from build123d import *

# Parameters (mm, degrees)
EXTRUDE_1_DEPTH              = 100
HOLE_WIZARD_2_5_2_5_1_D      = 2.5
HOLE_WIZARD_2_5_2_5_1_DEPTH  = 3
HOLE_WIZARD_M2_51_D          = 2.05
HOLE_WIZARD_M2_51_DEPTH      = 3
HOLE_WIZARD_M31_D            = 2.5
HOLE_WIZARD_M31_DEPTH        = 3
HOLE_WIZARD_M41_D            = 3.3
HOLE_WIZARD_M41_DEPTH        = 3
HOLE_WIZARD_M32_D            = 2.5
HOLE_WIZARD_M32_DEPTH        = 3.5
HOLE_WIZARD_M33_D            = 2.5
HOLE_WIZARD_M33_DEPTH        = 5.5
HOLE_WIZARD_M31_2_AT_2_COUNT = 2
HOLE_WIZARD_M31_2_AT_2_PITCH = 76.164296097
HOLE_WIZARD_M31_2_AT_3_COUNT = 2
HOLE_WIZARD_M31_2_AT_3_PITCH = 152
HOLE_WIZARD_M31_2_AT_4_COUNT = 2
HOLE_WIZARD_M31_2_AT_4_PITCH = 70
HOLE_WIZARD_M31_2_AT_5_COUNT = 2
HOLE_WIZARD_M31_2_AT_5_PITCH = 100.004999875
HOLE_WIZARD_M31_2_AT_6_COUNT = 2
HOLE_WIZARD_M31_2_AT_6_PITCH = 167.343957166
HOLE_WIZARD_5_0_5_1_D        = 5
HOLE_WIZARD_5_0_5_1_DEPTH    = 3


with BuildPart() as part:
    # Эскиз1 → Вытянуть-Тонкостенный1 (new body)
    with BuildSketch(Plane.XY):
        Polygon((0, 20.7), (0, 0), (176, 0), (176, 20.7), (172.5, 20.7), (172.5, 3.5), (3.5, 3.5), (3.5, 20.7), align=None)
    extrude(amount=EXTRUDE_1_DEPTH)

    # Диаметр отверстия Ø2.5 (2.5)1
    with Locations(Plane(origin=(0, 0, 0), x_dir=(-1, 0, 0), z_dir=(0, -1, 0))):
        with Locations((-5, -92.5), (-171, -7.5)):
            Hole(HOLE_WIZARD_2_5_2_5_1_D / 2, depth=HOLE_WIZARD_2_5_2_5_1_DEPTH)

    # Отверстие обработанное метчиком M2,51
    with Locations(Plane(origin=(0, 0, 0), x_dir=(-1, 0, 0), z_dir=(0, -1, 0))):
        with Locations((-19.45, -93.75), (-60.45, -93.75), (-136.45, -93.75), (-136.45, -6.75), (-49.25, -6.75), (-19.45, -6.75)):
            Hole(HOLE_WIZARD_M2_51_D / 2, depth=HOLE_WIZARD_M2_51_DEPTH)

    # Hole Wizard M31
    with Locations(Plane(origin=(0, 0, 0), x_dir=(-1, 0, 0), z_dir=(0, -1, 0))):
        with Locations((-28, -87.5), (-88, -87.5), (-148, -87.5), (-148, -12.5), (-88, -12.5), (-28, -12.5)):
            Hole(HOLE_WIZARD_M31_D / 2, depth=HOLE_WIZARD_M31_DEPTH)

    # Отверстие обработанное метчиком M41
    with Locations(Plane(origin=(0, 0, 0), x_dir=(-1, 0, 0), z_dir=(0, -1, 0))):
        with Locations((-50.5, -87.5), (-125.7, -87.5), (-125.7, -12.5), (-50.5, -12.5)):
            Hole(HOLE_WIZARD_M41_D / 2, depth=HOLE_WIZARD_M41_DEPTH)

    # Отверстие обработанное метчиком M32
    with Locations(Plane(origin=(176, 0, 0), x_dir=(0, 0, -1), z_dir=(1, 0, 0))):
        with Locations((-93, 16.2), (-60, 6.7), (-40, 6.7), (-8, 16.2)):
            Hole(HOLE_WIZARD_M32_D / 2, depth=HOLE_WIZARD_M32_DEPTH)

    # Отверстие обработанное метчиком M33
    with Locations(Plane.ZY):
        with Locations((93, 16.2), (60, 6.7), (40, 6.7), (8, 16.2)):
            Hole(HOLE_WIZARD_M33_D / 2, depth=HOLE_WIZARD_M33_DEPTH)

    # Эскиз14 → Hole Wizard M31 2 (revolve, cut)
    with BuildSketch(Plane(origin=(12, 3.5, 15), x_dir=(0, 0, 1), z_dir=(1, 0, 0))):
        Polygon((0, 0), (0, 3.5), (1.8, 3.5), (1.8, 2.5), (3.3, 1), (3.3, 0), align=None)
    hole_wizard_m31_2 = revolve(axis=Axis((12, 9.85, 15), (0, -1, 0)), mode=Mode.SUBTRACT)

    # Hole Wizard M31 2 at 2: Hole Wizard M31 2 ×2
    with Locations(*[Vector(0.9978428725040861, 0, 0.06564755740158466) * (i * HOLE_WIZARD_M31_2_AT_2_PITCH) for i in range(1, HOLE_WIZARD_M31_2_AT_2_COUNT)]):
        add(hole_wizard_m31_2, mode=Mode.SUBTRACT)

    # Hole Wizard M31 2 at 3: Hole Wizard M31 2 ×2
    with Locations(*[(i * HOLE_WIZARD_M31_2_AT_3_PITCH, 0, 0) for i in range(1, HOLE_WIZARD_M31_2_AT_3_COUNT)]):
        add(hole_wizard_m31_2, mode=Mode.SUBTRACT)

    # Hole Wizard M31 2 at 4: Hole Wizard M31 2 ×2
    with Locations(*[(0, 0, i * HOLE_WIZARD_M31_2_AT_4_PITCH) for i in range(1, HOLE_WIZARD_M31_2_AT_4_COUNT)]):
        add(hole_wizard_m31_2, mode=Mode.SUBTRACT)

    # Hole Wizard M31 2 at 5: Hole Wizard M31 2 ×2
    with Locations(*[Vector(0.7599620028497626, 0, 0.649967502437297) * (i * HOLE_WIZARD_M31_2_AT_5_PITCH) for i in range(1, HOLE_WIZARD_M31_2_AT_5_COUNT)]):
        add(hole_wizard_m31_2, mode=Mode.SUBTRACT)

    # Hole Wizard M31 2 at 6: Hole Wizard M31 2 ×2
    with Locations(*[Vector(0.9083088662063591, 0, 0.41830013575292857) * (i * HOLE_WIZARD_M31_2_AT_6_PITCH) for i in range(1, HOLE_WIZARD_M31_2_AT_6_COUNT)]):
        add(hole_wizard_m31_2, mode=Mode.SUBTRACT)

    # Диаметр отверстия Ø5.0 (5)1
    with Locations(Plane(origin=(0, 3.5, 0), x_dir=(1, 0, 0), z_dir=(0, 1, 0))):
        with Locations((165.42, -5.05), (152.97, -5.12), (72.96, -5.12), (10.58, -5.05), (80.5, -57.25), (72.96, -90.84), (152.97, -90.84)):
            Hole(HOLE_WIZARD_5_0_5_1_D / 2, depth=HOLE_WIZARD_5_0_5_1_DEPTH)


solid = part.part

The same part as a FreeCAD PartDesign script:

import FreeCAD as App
import Part
import Sketcher
from FreeCAD import Vector
Q = App.Units.Quantity

doc = App.newDocument("Part")
body = doc.addObject("PartDesign::Body", "Body")

# Sketch on XY plane
sketch1 = doc.addObject("Sketcher::SketchObject", "Sketch")
body.addObject(sketch1)
sketch1.AttachmentSupport = (doc.XY_Plane, [""])
sketch1.MapMode = "FlatFace"
sketch1.addGeometry(Part.LineSegment(Vector(0, 20.7, 0), Vector(0, 0, 0)), False)
sketch1.addGeometry(Part.LineSegment(Vector(0, 0, 0), Vector(176, 0, 0)), False)
sketch1.addGeometry(Part.LineSegment(Vector(176, 0, 0), Vector(176, 20.7, 0)), False)
sketch1.addGeometry(Part.LineSegment(Vector(176, 20.7, 0), Vector(172.5, 20.7, 0)), False)
sketch1.addGeometry(Part.LineSegment(Vector(172.5, 20.7, 0), Vector(172.5, 3.5, 0)), False)
sketch1.addGeometry(Part.LineSegment(Vector(172.5, 3.5, 0), Vector(3.5, 3.5, 0)), False)
sketch1.addGeometry(Part.LineSegment(Vector(3.5, 3.5, 0), Vector(3.5, 20.7, 0)), False)
sketch1.addGeometry(Part.LineSegment(Vector(3.5, 20.7, 0), Vector(0, 20.7, 0)), False)
sketch1.addConstraint(Sketcher.Constraint("Coincident", 0, 2, 1, 1))
sketch1.addConstraint(Sketcher.Constraint("Coincident", 1, 2, 2, 1))
sketch1.addConstraint(Sketcher.Constraint("Coincident", 2, 2, 3, 1))
sketch1.addConstraint(Sketcher.Constraint("Coincident", 3, 2, 4, 1))
sketch1.addConstraint(Sketcher.Constraint("Coincident", 4, 2, 5, 1))
sketch1.addConstraint(Sketcher.Constraint("Coincident", 5, 2, 6, 1))
sketch1.addConstraint(Sketcher.Constraint("Coincident", 6, 2, 7, 1))
sketch1.addConstraint(Sketcher.Constraint("Coincident", 7, 2, 0, 1))
sketch1.addConstraint(Sketcher.Constraint("Vertical", 0))
sketch1.addConstraint(Sketcher.Constraint("Horizontal", 1))
sketch1.addConstraint(Sketcher.Constraint("Vertical", 2))
sketch1.addConstraint(Sketcher.Constraint("Horizontal", 3))
sketch1.addConstraint(Sketcher.Constraint("Vertical", 4))
sketch1.addConstraint(Sketcher.Constraint("Horizontal", 5))
sketch1.addConstraint(Sketcher.Constraint("Vertical", 6))
sketch1.addConstraint(Sketcher.Constraint("Horizontal", 7))
sketch1.addConstraint(Sketcher.Constraint("Coincident", 0, 2, -1, 1))
sketch1.addConstraint(Sketcher.Constraint("Horizontal", 3, 2, 6, 2))
sketch1.addConstraint(Sketcher.Constraint("Equal", 3, 7))
sketch1.addConstraint(Sketcher.Constraint("DistanceX", 1, 1, 1, 2, 176.0))
sketch1.addConstraint(Sketcher.Constraint("DistanceX", 5, 2, 5, 1, 169.0))
sketch1.addConstraint(Sketcher.Constraint("DistanceY", 0, 2, 0, 1, 20.7))
sketch1.addConstraint(Sketcher.Constraint("DistanceY", 4, 2, 4, 1, 17.2))
pad1 = doc.addObject("PartDesign::Pad", "Pad")
body.addObject(pad1)
pad1.Profile = sketch1
pad1.Length = 100

# Sketch on XZ plane
sketch2 = doc.addObject("Sketcher::SketchObject", "Sketch001")
body.addObject(sketch2)
sketch2.AttachmentSupport = (doc.XZ_Plane, [""])
sketch2.MapMode = "FlatFace"
sketch2.addGeometry(Part.Circle(Vector(5, 92.5, 0), Vector(0, 0, 1), 1.2), False)
sketch2.addGeometry(Part.Circle(Vector(171, 7.5, 0), Vector(0, 0, 1), 1.2), False)
sketch2.addConstraint(Sketcher.Constraint("Equal", 0, 1))
sketch2.addConstraint(Sketcher.Constraint("Diameter", 0, 2.5))
sketch2.addConstraint(Sketcher.Constraint("DistanceX", -1, 1, 0, 3, 5.0))
sketch2.addConstraint(Sketcher.Constraint("DistanceX", -1, 1, 1, 3, 171.0))
sketch2.addConstraint(Sketcher.Constraint("DistanceY", 1, 3, 0, 3, 85.0))
sketch2.addConstraint(Sketcher.Constraint("DistanceY", -1, 1, 0, 3, 92.5))
doc.recompute()
hole = doc.addObject("PartDesign::Hole", "Hole")
body.addObject(hole)
hole.Profile = sketch2
hole.ThreadType = "None"
hole.Diameter = 2.5
hole.DepthType = "Dimension"
hole.Depth = 3
hole.DrillPoint = "Flat"

# Sketch on XZ plane
sketch3 = doc.addObject("Sketcher::SketchObject", "Sketch002")
body.addObject(sketch3)
sketch3.AttachmentSupport = (doc.XZ_Plane, [""])
sketch3.MapMode = "FlatFace"
sketch3.addGeometry(Part.Circle(Vector(19.4, 93.8, 0), Vector(0, 0, 1), 1), False)
sketch3.addGeometry(Part.Circle(Vector(60.5, 93.8, 0), Vector(0, 0, 1), 1), False)
sketch3.addGeometry(Part.Circle(Vector(136.4, 93.8, 0), Vector(0, 0, 1), 1), False)
sketch3.addGeometry(Part.Circle(Vector(136.4, 6.8, 0), Vector(0, 0, 1), 1), False)
sketch3.addGeometry(Part.Circle(Vector(49.2, 6.8, 0), Vector(0, 0, 1), 1), False)
sketch3.addGeometry(Part.Circle(Vector(19.4, 6.8, 0), Vector(0, 0, 1), 1), False)
sketch3.addConstraint(Sketcher.Constraint("Equal", 0, 1))
sketch3.addConstraint(Sketcher.Constraint("Equal", 1, 2))
sketch3.addConstraint(Sketcher.Constraint("Equal", 2, 3))
sketch3.addConstraint(Sketcher.Constraint("Equal", 3, 4))
sketch3.addConstraint(Sketcher.Constraint("Equal", 4, 5))
sketch3.addConstraint(Sketcher.Constraint("Horizontal", 0, 3, 1, 3))
sketch3.addConstraint(Sketcher.Constraint("Horizontal", 1, 3, 2, 3))
sketch3.addConstraint(Sketcher.Constraint("Horizontal", 3, 3, 4, 3))
sketch3.addConstraint(Sketcher.Constraint("Horizontal", 4, 3, 5, 3))
sketch3.addConstraint(Sketcher.Constraint("Vertical", 2, 3, 3, 3))
sketch3.addConstraint(Sketcher.Constraint("Vertical", 0, 3, 5, 3))
sketch3.addConstraint(Sketcher.Constraint("Diameter", 0, 2.05))
sketch3.addConstraint(Sketcher.Constraint("DistanceX", 0, 3, 1, 3, 41.0))
sketch3.addConstraint(Sketcher.Constraint("DistanceX", 1, 3, 2, 3, 76.0))
sketch3.addConstraint(Sketcher.Constraint("DistanceY", 3, 3, 2, 3, 87.0))
sketch3.addConstraint(Sketcher.Constraint("DistanceX", 4, 3, 3, 3, 87.2))
sketch3.addConstraint(Sketcher.Constraint("DistanceX", -1, 1, 0, 3, 19.45))
sketch3.addConstraint(Sketcher.Constraint("DistanceY", -1, 1, 0, 3, 93.75))
doc.recompute()
hole2 = doc.addObject("PartDesign::Hole", "Hole001")
body.addObject(hole2)
hole2.Profile = sketch3
hole2.ThreadType = "None"
hole2.Diameter = 2.05
hole2.DepthType = "Dimension"
hole2.Depth = 3
hole2.DrillPoint = "Flat"

# Sketch on XZ plane
sketch4 = doc.addObject("Sketcher::SketchObject", "Sketch003")
body.addObject(sketch4)
sketch4.AttachmentSupport = (doc.XZ_Plane, [""])
sketch4.MapMode = "FlatFace"
sketch4.addGeometry(Part.Circle(Vector(28, 87.5, 0), Vector(0, 0, 1), 1.2), False)
sketch4.addGeometry(Part.Circle(Vector(88, 87.5, 0), Vector(0, 0, 1), 1.2), False)
sketch4.addGeometry(Part.Circle(Vector(148, 87.5, 0), Vector(0, 0, 1), 1.2), False)
sketch4.addGeometry(Part.Circle(Vector(148, 12.5, 0), Vector(0, 0, 1), 1.2), False)
sketch4.addGeometry(Part.Circle(Vector(88, 12.5, 0), Vector(0, 0, 1), 1.2), False)
sketch4.addGeometry(Part.Circle(Vector(28, 12.5, 0), Vector(0, 0, 1), 1.2), False)
sketch4.addConstraint(Sketcher.Constraint("Equal", 0, 1))
sketch4.addConstraint(Sketcher.Constraint("Equal", 1, 2))
sketch4.addConstraint(Sketcher.Constraint("Equal", 2, 3))
sketch4.addConstraint(Sketcher.Constraint("Equal", 3, 4))
sketch4.addConstraint(Sketcher.Constraint("Equal", 4, 5))
sketch4.addConstraint(Sketcher.Constraint("Horizontal", 0, 3, 1, 3))
sketch4.addConstraint(Sketcher.Constraint("Horizontal", 1, 3, 2, 3))
sketch4.addConstraint(Sketcher.Constraint("Horizontal", 3, 3, 4, 3))
sketch4.addConstraint(Sketcher.Constraint("Horizontal", 4, 3, 5, 3))
sketch4.addConstraint(Sketcher.Constraint("Vertical", 2, 3, 3, 3))
sketch4.addConstraint(Sketcher.Constraint("Vertical", 1, 3, 4, 3))
sketch4.addConstraint(Sketcher.Constraint("Vertical", 0, 3, 5, 3))
sketch4.addConstraint(Sketcher.Constraint("Diameter", 0, 2.5))
sketch4.addConstraint(Sketcher.Constraint("DistanceX", -1, 1, 0, 3, 28.0))
sketch4.addConstraint(Sketcher.Constraint("DistanceX", -1, 1, 1, 3, 88.0))
sketch4.addConstraint(Sketcher.Constraint("DistanceX", -1, 1, 2, 3, 148.0))
sketch4.addConstraint(Sketcher.Constraint("DistanceY", 3, 3, 2, 3, 75.0))
sketch4.addConstraint(Sketcher.Constraint("DistanceY", -1, 1, 0, 3, 87.5))
doc.recompute()
hole3 = doc.addObject("PartDesign::Hole", "Hole002")
body.addObject(hole3)
hole3.Profile = sketch4
hole3.ThreadType = "None"
hole3.Diameter = 2.5
hole3.DepthType = "Dimension"
hole3.Depth = 3
hole3.DrillPoint = "Flat"

# Sketch on XZ plane
sketch5 = doc.addObject("Sketcher::SketchObject", "Sketch004")
body.addObject(sketch5)
sketch5.AttachmentSupport = (doc.XZ_Plane, [""])
sketch5.MapMode = "FlatFace"
sketch5.addGeometry(Part.Circle(Vector(50.5, 87.5, 0), Vector(0, 0, 1), 1.6), False)
sketch5.addGeometry(Part.Circle(Vector(125.7, 87.5, 0), Vector(0, 0, 1), 1.6), False)
sketch5.addGeometry(Part.Circle(Vector(125.7, 12.5, 0), Vector(0, 0, 1), 1.6), False)
sketch5.addGeometry(Part.Circle(Vector(50.5, 12.5, 0), Vector(0, 0, 1), 1.6), False)
sketch5.addConstraint(Sketcher.Constraint("Equal", 0, 1))
sketch5.addConstraint(Sketcher.Constraint("Equal", 1, 2))
sketch5.addConstraint(Sketcher.Constraint("Equal", 2, 3))
sketch5.addConstraint(Sketcher.Constraint("Horizontal", 0, 3, 1, 3))
sketch5.addConstraint(Sketcher.Constraint("Horizontal", 2, 3, 3, 3))
sketch5.addConstraint(Sketcher.Constraint("Vertical", 1, 3, 2, 3))
sketch5.addConstraint(Sketcher.Constraint("Vertical", 0, 3, 3, 3))
sketch5.addConstraint(Sketcher.Constraint("Diameter", 0, 3.3))
sketch5.addConstraint(Sketcher.Constraint("DistanceY", 2, 3, 1, 3, 75.0))
sketch5.addConstraint(Sketcher.Constraint("DistanceX", -1, 1, 0, 3, 50.5))
sketch5.addConstraint(Sketcher.Constraint("DistanceY", -1, 1, 0, 3, 87.5))
sketch5.addConstraint(Sketcher.Constraint("DistanceX", -1, 1, 1, 3, 125.7))
doc.recompute()
hole4 = doc.addObject("PartDesign::Hole", "Hole003")
body.addObject(hole4)
hole4.Profile = sketch5
hole4.ThreadType = "None"
hole4.Diameter = 3.3
hole4.DepthType = "Dimension"
hole4.Depth = 3
hole4.DrillPoint = "Flat"

# Sketch on YZ plane
sketch6 = doc.addObject("Sketcher::SketchObject", "Sketch005")
body.addObject(sketch6)
sketch6.AttachmentSupport = (doc.YZ_Plane, [""])
sketch6.MapMode = "FlatFace"
sketch6.AttachmentOffset = App.Placement(Vector(0, 0, 176), App.Rotation())
sketch6.addGeometry(Part.Circle(Vector(16.2, 93, 0), Vector(0, 0, 1), 1.2), False)
sketch6.addGeometry(Part.Circle(Vector(6.7, 60, 0), Vector(0, 0, 1), 1.2), False)
sketch6.addGeometry(Part.Circle(Vector(6.7, 40, 0), Vector(0, 0, 1), 1.2), False)
sketch6.addGeometry(Part.Circle(Vector(16.2, 8, 0), Vector(0, 0, 1), 1.2), False)
sketch6.addConstraint(Sketcher.Constraint("Equal", 0, 1))
sketch6.addConstraint(Sketcher.Constraint("Equal", 1, 2))
sketch6.addConstraint(Sketcher.Constraint("Equal", 2, 3))
sketch6.addConstraint(Sketcher.Constraint("Vertical", 1, 3, 2, 3))
sketch6.addConstraint(Sketcher.Constraint("Vertical", 0, 3, 3, 3))
sketch6.addConstraint(Sketcher.Constraint("Diameter", 0, 2.5))
sketch6.addConstraint(Sketcher.Constraint("DistanceY", -1, 1, 0, 3, 93.0))
sketch6.addConstraint(Sketcher.Constraint("DistanceY", -1, 1, 1, 3, 60.0))
sketch6.addConstraint(Sketcher.Constraint("DistanceY", -1, 1, 2, 3, 40.0))
sketch6.addConstraint(Sketcher.Constraint("DistanceY", -1, 1, 3, 3, 8.0))
sketch6.addConstraint(Sketcher.Constraint("DistanceX", -1, 1, 0, 3, 16.2))
sketch6.addConstraint(Sketcher.Constraint("DistanceX", -1, 1, 1, 3, 6.7))
doc.recompute()
hole5 = doc.addObject("PartDesign::Hole", "Hole004")
body.addObject(hole5)
hole5.Profile = sketch6
hole5.ThreadType = "None"
hole5.Diameter = 2.5
hole5.DepthType = "Dimension"
hole5.Depth = 3.5
hole5.DrillPoint = "Flat"

# Sketch on YZ plane
sketch7 = doc.addObject("Sketcher::SketchObject", "Sketch006")
body.addObject(sketch7)
sketch7.AttachmentSupport = (doc.YZ_Plane, [""])
sketch7.MapMode = "FlatFace"
sketch7.addGeometry(Part.Circle(Vector(16.2, 93, 0), Vector(0, 0, 1), 1.2), False)
sketch7.addGeometry(Part.Circle(Vector(6.7, 60, 0), Vector(0, 0, 1), 1.2), False)
sketch7.addGeometry(Part.Circle(Vector(6.7, 40, 0), Vector(0, 0, 1), 1.2), False)
sketch7.addGeometry(Part.Circle(Vector(16.2, 8, 0), Vector(0, 0, 1), 1.2), False)
sketch7.addConstraint(Sketcher.Constraint("Equal", 0, 1))
sketch7.addConstraint(Sketcher.Constraint("Equal", 1, 2))
sketch7.addConstraint(Sketcher.Constraint("Equal", 2, 3))
sketch7.addConstraint(Sketcher.Constraint("Vertical", 1, 3, 2, 3))
sketch7.addConstraint(Sketcher.Constraint("Vertical", 0, 3, 3, 3))
sketch7.addConstraint(Sketcher.Constraint("Diameter", 0, 2.5))
sketch7.addConstraint(Sketcher.Constraint("DistanceY", -1, 1, 0, 3, 93.0))
sketch7.addConstraint(Sketcher.Constraint("DistanceY", -1, 1, 1, 3, 60.0))
sketch7.addConstraint(Sketcher.Constraint("DistanceY", -1, 1, 2, 3, 40.0))
sketch7.addConstraint(Sketcher.Constraint("DistanceY", -1, 1, 3, 3, 8.0))
sketch7.addConstraint(Sketcher.Constraint("DistanceX", -1, 1, 0, 3, 16.2))
sketch7.addConstraint(Sketcher.Constraint("DistanceX", -1, 1, 1, 3, 6.7))
doc.recompute()
hole6 = doc.addObject("PartDesign::Hole", "Hole005")
body.addObject(hole6)
hole6.Profile = sketch7
hole6.ThreadType = "None"
hole6.Diameter = 2.5
hole6.DepthType = "Dimension"
hole6.Depth = 5.5
hole6.DrillPoint = "Flat"
hole6.Reversed = True

# Sketch on YZ plane
sketch8 = doc.addObject("Sketcher::SketchObject", "Sketch007")
body.addObject(sketch8)
sketch8.AttachmentSupport = (doc.YZ_Plane, [""])
sketch8.MapMode = "FlatFace"
sketch8.AttachmentOffset = App.Placement(Vector(0, 0, 12), App.Rotation())
sketch8.addGeometry(Part.LineSegment(Vector(0, 15, 0), Vector(3.5, 15, 0)), False)
sketch8.addGeometry(Part.LineSegment(Vector(3.5, 15, 0), Vector(3.5, 18.3, 0)), False)
sketch8.addGeometry(Part.LineSegment(Vector(3.5, 18.3, 0), Vector(2.5, 18.3, 0)), False)
sketch8.addGeometry(Part.LineSegment(Vector(2.5, 18.3, 0), Vector(1, 16.8, 0)), False)
sketch8.addGeometry(Part.LineSegment(Vector(1, 16.8, 0), Vector(0, 16.8, 0)), False)
sketch8.addGeometry(Part.LineSegment(Vector(0, 16.8, 0), Vector(0, 15, 0)), False)
sketch8.addGeometry(Part.LineSegment(Vector(3.5, 15, 0), Vector(0, 15, 0)), True)  # axis
sketch8.addConstraint(Sketcher.Constraint("Coincident", 0, 2, 1, 1))
sketch8.addConstraint(Sketcher.Constraint("Coincident", 1, 2, 2, 1))
sketch8.addConstraint(Sketcher.Constraint("Coincident", 2, 2, 3, 1))
sketch8.addConstraint(Sketcher.Constraint("Coincident", 3, 2, 4, 1))
sketch8.addConstraint(Sketcher.Constraint("Coincident", 4, 2, 5, 1))
sketch8.addConstraint(Sketcher.Constraint("Coincident", 5, 2, 0, 1))
sketch8.addConstraint(Sketcher.Constraint("Horizontal", 0))
sketch8.addConstraint(Sketcher.Constraint("Vertical", 1))
sketch8.addConstraint(Sketcher.Constraint("Horizontal", 2))
sketch8.addConstraint(Sketcher.Constraint("Horizontal", 4))
sketch8.addConstraint(Sketcher.Constraint("Vertical", 5))
sketch8.addConstraint(Sketcher.Constraint("Horizontal", 6))
sketch8.addConstraint(Sketcher.Constraint("Coincident", 6, 1, 0, 2))
sketch8.addConstraint(Sketcher.Constraint("PointOnObject", 4, 2, -2))
sketch8.addConstraint(Sketcher.Constraint("PointOnObject", 6, 2, -2))
sketch8.addConstraint(Sketcher.Constraint("Equal", 2, 4))
sketch8.addConstraint(Sketcher.Constraint("DistanceX", 2, 2, 2, 1, 1.0))
sketch8.addConstraint(Sketcher.Constraint("Angle", 3, Q("-135 deg")))
sketch8.addConstraint(Sketcher.Constraint("DistanceX", 0, 1, 0, 2, 3.5))
sketch8.addConstraint(Sketcher.Constraint("DistanceY", 1, 1, 1, 2, 3.3))
sketch8.addConstraint(Sketcher.Constraint("DistanceY", -1, 1, 0, 2, 15.0))
groove = doc.addObject("PartDesign::Groove", "Groove")
body.addObject(groove)
groove.Profile = sketch8
groove.ReferenceAxis = (sketch8, ["Axis0"])
groove.Angle = 360
doc.recompute()

datumline = doc.addObject("PartDesign::Line", "DatumLine")
body.addObject(datumline)
datumline.Placement = App.Placement(Vector(0, 0, 0), App.Rotation(Vector(0, 0, 1), Vector(0.997842873, 0, 0.065647557)))
linearpattern = doc.addObject("PartDesign::LinearPattern", "LinearPattern")
body.addObject(linearpattern)
linearpattern.Originals = [groove]
linearpattern.Direction = (datumline, [""])
linearpattern.Mode = "offset"
linearpattern.Offset = 76.164296
linearpattern.Occurrences = 2
body.Tip = linearpattern
doc.recompute()

linearpattern2 = doc.addObject("PartDesign::LinearPattern", "LinearPattern001")
body.addObject(linearpattern2)
linearpattern2.Originals = [groove]
linearpattern2.Direction = (doc.X_Axis, [""])
linearpattern2.Mode = "offset"
linearpattern2.Offset = 152
linearpattern2.Occurrences = 2
body.Tip = linearpattern2
doc.recompute()

linearpattern3 = doc.addObject("PartDesign::LinearPattern", "LinearPattern002")
body.addObject(linearpattern3)
linearpattern3.Originals = [groove]
linearpattern3.Direction = (doc.Z_Axis, [""])
linearpattern3.Mode = "offset"
linearpattern3.Offset = 70
linearpattern3.Occurrences = 2
body.Tip = linearpattern3
doc.recompute()

datumline2 = doc.addObject("PartDesign::Line", "DatumLine001")
body.addObject(datumline2)
datumline2.Placement = App.Placement(Vector(0, 0, 0), App.Rotation(Vector(0, 0, 1), Vector(0.759962003, 0, 0.649967502)))
linearpattern4 = doc.addObject("PartDesign::LinearPattern", "LinearPattern003")
body.addObject(linearpattern4)
linearpattern4.Originals = [groove]
linearpattern4.Direction = (datumline2, [""])
linearpattern4.Mode = "offset"
linearpattern4.Offset = 100.005
linearpattern4.Occurrences = 2
body.Tip = linearpattern4
doc.recompute()

datumline3 = doc.addObject("PartDesign::Line", "DatumLine002")
body.addObject(datumline3)
datumline3.Placement = App.Placement(Vector(0, 0, 0), App.Rotation(Vector(0, 0, 1), Vector(0.908308866, 0, 0.418300136)))
linearpattern5 = doc.addObject("PartDesign::LinearPattern", "LinearPattern004")
body.addObject(linearpattern5)
linearpattern5.Originals = [groove]
linearpattern5.Direction = (datumline3, [""])
linearpattern5.Mode = "offset"
linearpattern5.Offset = 167.343957
linearpattern5.Occurrences = 2
body.Tip = linearpattern5

# Sketch on XZ plane
sketch9 = doc.addObject("Sketcher::SketchObject", "Sketch008")
body.addObject(sketch9)
sketch9.AttachmentSupport = (doc.XZ_Plane, [""])
sketch9.MapMode = "FlatFace"
sketch9.AttachmentOffset = App.Placement(Vector(0, 0, -3.5), App.Rotation())
sketch9.addGeometry(Part.Circle(Vector(165.4, 5, 0), Vector(0, 0, 1), 2.5), False)
sketch9.addGeometry(Part.Circle(Vector(153, 5.1, 0), Vector(0, 0, 1), 2.5), False)
sketch9.addGeometry(Part.Circle(Vector(73, 5.1, 0), Vector(0, 0, 1), 2.5), False)
sketch9.addGeometry(Part.Circle(Vector(10.6, 5, 0), Vector(0, 0, 1), 2.5), False)
sketch9.addGeometry(Part.Circle(Vector(80.5, 57.2, 0), Vector(0, 0, 1), 2.5), False)
sketch9.addGeometry(Part.Circle(Vector(73, 90.8, 0), Vector(0, 0, 1), 2.5), False)
sketch9.addGeometry(Part.Circle(Vector(153, 90.8, 0), Vector(0, 0, 1), 2.5), False)
sketch9.addConstraint(Sketcher.Constraint("Equal", 0, 1))
sketch9.addConstraint(Sketcher.Constraint("Equal", 1, 2))
sketch9.addConstraint(Sketcher.Constraint("Equal", 2, 3))
sketch9.addConstraint(Sketcher.Constraint("Equal", 3, 4))
sketch9.addConstraint(Sketcher.Constraint("Equal", 4, 5))
sketch9.addConstraint(Sketcher.Constraint("Equal", 5, 6))
sketch9.addConstraint(Sketcher.Constraint("Horizontal", 1, 3, 2, 3))
sketch9.addConstraint(Sketcher.Constraint("Horizontal", 0, 3, 3, 3))
sketch9.addConstraint(Sketcher.Constraint("Horizontal", 5, 3, 6, 3))
sketch9.addConstraint(Sketcher.Constraint("Vertical", 2, 3, 5, 3))
sketch9.addConstraint(Sketcher.Constraint("Vertical", 1, 3, 6, 3))
sketch9.addConstraint(Sketcher.Constraint("Diameter", 0, 5.0))
sketch9.addConstraint(Sketcher.Constraint("DistanceX", -1, 1, 4, 3, 80.5))
sketch9.addConstraint(Sketcher.Constraint("DistanceY", 3, 3, 4, 3, 52.2))
sketch9.addConstraint(Sketcher.Constraint("DistanceX", -1, 1, 0, 3, 165.42))
sketch9.addConstraint(Sketcher.Constraint("DistanceY", -1, 1, 0, 3, 5.05))
sketch9.addConstraint(Sketcher.Constraint("DistanceX", -1, 1, 1, 3, 152.97))
sketch9.addConstraint(Sketcher.Constraint("DistanceY", -1, 1, 1, 3, 5.12))
sketch9.addConstraint(Sketcher.Constraint("DistanceX", -1, 1, 2, 3, 72.96))
sketch9.addConstraint(Sketcher.Constraint("DistanceX", -1, 1, 3, 3, 10.58))
sketch9.addConstraint(Sketcher.Constraint("DistanceY", -1, 1, 5, 3, 90.84))
doc.recompute()
hole7 = doc.addObject("PartDesign::Hole", "Hole006")
body.addObject(hole7)
hole7.Profile = sketch9
hole7.ThreadType = "None"
hole7.Diameter = 5
hole7.DepthType = "Dimension"
hole7.Depth = 3
hole7.DrillPoint = "Flat"
hole7.Reversed = True

doc.recompute()
